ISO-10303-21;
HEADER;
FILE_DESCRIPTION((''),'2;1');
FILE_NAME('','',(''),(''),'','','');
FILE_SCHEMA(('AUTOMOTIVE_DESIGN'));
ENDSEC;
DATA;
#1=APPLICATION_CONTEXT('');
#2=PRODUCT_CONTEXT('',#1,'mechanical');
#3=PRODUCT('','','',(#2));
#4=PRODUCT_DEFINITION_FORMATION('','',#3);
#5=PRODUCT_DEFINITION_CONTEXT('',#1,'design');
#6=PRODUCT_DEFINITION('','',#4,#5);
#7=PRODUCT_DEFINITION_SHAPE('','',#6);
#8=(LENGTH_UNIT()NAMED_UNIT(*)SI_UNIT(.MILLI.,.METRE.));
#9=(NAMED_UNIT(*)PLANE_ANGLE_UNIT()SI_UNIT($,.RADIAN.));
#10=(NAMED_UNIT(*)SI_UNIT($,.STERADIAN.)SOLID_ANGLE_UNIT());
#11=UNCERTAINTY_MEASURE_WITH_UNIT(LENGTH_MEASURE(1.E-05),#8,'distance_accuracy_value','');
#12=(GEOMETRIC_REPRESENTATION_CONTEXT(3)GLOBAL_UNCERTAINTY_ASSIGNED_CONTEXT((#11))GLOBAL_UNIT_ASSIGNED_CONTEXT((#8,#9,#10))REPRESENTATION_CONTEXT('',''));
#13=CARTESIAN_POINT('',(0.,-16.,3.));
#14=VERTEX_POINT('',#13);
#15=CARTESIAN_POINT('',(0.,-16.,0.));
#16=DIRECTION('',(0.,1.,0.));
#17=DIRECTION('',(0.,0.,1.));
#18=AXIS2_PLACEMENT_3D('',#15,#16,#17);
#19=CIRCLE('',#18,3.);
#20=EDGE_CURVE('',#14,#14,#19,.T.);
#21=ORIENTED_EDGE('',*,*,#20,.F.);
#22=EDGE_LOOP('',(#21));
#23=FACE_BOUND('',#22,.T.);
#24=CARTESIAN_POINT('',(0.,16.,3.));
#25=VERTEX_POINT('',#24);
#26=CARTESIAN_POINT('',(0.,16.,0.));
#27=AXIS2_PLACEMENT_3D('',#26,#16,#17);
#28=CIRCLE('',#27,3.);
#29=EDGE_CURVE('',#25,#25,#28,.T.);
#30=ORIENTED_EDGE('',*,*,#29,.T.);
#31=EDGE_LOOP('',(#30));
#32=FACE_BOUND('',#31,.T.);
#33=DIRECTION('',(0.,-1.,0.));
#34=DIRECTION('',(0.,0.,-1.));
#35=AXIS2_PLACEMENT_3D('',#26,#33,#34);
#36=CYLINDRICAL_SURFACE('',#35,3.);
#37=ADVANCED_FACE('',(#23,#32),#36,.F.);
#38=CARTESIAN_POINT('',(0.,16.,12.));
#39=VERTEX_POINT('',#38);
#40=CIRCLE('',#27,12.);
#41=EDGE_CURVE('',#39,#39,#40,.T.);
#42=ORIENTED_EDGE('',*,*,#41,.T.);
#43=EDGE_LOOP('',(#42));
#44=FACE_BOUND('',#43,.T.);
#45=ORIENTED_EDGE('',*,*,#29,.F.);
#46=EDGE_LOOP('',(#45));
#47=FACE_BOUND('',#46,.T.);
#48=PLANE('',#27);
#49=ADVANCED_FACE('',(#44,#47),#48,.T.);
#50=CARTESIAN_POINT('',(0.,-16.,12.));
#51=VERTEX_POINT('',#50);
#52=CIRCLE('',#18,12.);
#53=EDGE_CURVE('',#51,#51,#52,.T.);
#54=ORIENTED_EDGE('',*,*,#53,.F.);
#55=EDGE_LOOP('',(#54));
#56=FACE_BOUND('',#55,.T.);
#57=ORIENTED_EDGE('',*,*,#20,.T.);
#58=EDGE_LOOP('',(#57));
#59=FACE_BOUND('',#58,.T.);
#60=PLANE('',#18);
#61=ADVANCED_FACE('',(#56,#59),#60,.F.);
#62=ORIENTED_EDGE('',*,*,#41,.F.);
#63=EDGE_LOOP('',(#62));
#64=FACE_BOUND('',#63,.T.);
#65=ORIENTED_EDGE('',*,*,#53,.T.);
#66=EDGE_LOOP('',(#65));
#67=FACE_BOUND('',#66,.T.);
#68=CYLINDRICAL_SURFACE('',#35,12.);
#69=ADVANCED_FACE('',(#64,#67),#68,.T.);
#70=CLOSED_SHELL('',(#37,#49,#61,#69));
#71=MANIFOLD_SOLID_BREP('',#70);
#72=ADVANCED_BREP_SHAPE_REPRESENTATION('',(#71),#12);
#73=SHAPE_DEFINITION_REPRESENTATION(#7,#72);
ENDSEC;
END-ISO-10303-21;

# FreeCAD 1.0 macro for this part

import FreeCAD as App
import Part
import Sketcher
from FreeCAD import Vector

doc = App.newDocument("Part")
body = doc.addObject("PartDesign::Body", "Body")

sketch1 = body.newObject("Sketcher::SketchObject", "Sketch")
sketch1.AttachmentSupport = (doc.getObject("XZ_Plane"), [""])
sketch1.MapMode = "FlatFace"
sketch1.addGeometry([
    Part.Circle(Vector(0, 0, 0), Vector(0, 0, 1), 12),
    Part.Circle(Vector(0, 0, 0), Vector(0, 0, 1), 3),
], False)
sketch1.addConstraint([
    Sketcher.Constraint("Coincident", 0, 3, -1, 1),
    Sketcher.Constraint("Coincident", 1, 3, -1, 1),
    Sketcher.Constraint("Diameter", 0, 24.0),
    Sketcher.Constraint("Diameter", 1, 6.0),
])
pad1 = body.newObject("PartDesign::Pad", "Pad")
pad1.Profile = sketch1
pad1.Length = 32
pad1.Midplane = True

doc.recompute()
